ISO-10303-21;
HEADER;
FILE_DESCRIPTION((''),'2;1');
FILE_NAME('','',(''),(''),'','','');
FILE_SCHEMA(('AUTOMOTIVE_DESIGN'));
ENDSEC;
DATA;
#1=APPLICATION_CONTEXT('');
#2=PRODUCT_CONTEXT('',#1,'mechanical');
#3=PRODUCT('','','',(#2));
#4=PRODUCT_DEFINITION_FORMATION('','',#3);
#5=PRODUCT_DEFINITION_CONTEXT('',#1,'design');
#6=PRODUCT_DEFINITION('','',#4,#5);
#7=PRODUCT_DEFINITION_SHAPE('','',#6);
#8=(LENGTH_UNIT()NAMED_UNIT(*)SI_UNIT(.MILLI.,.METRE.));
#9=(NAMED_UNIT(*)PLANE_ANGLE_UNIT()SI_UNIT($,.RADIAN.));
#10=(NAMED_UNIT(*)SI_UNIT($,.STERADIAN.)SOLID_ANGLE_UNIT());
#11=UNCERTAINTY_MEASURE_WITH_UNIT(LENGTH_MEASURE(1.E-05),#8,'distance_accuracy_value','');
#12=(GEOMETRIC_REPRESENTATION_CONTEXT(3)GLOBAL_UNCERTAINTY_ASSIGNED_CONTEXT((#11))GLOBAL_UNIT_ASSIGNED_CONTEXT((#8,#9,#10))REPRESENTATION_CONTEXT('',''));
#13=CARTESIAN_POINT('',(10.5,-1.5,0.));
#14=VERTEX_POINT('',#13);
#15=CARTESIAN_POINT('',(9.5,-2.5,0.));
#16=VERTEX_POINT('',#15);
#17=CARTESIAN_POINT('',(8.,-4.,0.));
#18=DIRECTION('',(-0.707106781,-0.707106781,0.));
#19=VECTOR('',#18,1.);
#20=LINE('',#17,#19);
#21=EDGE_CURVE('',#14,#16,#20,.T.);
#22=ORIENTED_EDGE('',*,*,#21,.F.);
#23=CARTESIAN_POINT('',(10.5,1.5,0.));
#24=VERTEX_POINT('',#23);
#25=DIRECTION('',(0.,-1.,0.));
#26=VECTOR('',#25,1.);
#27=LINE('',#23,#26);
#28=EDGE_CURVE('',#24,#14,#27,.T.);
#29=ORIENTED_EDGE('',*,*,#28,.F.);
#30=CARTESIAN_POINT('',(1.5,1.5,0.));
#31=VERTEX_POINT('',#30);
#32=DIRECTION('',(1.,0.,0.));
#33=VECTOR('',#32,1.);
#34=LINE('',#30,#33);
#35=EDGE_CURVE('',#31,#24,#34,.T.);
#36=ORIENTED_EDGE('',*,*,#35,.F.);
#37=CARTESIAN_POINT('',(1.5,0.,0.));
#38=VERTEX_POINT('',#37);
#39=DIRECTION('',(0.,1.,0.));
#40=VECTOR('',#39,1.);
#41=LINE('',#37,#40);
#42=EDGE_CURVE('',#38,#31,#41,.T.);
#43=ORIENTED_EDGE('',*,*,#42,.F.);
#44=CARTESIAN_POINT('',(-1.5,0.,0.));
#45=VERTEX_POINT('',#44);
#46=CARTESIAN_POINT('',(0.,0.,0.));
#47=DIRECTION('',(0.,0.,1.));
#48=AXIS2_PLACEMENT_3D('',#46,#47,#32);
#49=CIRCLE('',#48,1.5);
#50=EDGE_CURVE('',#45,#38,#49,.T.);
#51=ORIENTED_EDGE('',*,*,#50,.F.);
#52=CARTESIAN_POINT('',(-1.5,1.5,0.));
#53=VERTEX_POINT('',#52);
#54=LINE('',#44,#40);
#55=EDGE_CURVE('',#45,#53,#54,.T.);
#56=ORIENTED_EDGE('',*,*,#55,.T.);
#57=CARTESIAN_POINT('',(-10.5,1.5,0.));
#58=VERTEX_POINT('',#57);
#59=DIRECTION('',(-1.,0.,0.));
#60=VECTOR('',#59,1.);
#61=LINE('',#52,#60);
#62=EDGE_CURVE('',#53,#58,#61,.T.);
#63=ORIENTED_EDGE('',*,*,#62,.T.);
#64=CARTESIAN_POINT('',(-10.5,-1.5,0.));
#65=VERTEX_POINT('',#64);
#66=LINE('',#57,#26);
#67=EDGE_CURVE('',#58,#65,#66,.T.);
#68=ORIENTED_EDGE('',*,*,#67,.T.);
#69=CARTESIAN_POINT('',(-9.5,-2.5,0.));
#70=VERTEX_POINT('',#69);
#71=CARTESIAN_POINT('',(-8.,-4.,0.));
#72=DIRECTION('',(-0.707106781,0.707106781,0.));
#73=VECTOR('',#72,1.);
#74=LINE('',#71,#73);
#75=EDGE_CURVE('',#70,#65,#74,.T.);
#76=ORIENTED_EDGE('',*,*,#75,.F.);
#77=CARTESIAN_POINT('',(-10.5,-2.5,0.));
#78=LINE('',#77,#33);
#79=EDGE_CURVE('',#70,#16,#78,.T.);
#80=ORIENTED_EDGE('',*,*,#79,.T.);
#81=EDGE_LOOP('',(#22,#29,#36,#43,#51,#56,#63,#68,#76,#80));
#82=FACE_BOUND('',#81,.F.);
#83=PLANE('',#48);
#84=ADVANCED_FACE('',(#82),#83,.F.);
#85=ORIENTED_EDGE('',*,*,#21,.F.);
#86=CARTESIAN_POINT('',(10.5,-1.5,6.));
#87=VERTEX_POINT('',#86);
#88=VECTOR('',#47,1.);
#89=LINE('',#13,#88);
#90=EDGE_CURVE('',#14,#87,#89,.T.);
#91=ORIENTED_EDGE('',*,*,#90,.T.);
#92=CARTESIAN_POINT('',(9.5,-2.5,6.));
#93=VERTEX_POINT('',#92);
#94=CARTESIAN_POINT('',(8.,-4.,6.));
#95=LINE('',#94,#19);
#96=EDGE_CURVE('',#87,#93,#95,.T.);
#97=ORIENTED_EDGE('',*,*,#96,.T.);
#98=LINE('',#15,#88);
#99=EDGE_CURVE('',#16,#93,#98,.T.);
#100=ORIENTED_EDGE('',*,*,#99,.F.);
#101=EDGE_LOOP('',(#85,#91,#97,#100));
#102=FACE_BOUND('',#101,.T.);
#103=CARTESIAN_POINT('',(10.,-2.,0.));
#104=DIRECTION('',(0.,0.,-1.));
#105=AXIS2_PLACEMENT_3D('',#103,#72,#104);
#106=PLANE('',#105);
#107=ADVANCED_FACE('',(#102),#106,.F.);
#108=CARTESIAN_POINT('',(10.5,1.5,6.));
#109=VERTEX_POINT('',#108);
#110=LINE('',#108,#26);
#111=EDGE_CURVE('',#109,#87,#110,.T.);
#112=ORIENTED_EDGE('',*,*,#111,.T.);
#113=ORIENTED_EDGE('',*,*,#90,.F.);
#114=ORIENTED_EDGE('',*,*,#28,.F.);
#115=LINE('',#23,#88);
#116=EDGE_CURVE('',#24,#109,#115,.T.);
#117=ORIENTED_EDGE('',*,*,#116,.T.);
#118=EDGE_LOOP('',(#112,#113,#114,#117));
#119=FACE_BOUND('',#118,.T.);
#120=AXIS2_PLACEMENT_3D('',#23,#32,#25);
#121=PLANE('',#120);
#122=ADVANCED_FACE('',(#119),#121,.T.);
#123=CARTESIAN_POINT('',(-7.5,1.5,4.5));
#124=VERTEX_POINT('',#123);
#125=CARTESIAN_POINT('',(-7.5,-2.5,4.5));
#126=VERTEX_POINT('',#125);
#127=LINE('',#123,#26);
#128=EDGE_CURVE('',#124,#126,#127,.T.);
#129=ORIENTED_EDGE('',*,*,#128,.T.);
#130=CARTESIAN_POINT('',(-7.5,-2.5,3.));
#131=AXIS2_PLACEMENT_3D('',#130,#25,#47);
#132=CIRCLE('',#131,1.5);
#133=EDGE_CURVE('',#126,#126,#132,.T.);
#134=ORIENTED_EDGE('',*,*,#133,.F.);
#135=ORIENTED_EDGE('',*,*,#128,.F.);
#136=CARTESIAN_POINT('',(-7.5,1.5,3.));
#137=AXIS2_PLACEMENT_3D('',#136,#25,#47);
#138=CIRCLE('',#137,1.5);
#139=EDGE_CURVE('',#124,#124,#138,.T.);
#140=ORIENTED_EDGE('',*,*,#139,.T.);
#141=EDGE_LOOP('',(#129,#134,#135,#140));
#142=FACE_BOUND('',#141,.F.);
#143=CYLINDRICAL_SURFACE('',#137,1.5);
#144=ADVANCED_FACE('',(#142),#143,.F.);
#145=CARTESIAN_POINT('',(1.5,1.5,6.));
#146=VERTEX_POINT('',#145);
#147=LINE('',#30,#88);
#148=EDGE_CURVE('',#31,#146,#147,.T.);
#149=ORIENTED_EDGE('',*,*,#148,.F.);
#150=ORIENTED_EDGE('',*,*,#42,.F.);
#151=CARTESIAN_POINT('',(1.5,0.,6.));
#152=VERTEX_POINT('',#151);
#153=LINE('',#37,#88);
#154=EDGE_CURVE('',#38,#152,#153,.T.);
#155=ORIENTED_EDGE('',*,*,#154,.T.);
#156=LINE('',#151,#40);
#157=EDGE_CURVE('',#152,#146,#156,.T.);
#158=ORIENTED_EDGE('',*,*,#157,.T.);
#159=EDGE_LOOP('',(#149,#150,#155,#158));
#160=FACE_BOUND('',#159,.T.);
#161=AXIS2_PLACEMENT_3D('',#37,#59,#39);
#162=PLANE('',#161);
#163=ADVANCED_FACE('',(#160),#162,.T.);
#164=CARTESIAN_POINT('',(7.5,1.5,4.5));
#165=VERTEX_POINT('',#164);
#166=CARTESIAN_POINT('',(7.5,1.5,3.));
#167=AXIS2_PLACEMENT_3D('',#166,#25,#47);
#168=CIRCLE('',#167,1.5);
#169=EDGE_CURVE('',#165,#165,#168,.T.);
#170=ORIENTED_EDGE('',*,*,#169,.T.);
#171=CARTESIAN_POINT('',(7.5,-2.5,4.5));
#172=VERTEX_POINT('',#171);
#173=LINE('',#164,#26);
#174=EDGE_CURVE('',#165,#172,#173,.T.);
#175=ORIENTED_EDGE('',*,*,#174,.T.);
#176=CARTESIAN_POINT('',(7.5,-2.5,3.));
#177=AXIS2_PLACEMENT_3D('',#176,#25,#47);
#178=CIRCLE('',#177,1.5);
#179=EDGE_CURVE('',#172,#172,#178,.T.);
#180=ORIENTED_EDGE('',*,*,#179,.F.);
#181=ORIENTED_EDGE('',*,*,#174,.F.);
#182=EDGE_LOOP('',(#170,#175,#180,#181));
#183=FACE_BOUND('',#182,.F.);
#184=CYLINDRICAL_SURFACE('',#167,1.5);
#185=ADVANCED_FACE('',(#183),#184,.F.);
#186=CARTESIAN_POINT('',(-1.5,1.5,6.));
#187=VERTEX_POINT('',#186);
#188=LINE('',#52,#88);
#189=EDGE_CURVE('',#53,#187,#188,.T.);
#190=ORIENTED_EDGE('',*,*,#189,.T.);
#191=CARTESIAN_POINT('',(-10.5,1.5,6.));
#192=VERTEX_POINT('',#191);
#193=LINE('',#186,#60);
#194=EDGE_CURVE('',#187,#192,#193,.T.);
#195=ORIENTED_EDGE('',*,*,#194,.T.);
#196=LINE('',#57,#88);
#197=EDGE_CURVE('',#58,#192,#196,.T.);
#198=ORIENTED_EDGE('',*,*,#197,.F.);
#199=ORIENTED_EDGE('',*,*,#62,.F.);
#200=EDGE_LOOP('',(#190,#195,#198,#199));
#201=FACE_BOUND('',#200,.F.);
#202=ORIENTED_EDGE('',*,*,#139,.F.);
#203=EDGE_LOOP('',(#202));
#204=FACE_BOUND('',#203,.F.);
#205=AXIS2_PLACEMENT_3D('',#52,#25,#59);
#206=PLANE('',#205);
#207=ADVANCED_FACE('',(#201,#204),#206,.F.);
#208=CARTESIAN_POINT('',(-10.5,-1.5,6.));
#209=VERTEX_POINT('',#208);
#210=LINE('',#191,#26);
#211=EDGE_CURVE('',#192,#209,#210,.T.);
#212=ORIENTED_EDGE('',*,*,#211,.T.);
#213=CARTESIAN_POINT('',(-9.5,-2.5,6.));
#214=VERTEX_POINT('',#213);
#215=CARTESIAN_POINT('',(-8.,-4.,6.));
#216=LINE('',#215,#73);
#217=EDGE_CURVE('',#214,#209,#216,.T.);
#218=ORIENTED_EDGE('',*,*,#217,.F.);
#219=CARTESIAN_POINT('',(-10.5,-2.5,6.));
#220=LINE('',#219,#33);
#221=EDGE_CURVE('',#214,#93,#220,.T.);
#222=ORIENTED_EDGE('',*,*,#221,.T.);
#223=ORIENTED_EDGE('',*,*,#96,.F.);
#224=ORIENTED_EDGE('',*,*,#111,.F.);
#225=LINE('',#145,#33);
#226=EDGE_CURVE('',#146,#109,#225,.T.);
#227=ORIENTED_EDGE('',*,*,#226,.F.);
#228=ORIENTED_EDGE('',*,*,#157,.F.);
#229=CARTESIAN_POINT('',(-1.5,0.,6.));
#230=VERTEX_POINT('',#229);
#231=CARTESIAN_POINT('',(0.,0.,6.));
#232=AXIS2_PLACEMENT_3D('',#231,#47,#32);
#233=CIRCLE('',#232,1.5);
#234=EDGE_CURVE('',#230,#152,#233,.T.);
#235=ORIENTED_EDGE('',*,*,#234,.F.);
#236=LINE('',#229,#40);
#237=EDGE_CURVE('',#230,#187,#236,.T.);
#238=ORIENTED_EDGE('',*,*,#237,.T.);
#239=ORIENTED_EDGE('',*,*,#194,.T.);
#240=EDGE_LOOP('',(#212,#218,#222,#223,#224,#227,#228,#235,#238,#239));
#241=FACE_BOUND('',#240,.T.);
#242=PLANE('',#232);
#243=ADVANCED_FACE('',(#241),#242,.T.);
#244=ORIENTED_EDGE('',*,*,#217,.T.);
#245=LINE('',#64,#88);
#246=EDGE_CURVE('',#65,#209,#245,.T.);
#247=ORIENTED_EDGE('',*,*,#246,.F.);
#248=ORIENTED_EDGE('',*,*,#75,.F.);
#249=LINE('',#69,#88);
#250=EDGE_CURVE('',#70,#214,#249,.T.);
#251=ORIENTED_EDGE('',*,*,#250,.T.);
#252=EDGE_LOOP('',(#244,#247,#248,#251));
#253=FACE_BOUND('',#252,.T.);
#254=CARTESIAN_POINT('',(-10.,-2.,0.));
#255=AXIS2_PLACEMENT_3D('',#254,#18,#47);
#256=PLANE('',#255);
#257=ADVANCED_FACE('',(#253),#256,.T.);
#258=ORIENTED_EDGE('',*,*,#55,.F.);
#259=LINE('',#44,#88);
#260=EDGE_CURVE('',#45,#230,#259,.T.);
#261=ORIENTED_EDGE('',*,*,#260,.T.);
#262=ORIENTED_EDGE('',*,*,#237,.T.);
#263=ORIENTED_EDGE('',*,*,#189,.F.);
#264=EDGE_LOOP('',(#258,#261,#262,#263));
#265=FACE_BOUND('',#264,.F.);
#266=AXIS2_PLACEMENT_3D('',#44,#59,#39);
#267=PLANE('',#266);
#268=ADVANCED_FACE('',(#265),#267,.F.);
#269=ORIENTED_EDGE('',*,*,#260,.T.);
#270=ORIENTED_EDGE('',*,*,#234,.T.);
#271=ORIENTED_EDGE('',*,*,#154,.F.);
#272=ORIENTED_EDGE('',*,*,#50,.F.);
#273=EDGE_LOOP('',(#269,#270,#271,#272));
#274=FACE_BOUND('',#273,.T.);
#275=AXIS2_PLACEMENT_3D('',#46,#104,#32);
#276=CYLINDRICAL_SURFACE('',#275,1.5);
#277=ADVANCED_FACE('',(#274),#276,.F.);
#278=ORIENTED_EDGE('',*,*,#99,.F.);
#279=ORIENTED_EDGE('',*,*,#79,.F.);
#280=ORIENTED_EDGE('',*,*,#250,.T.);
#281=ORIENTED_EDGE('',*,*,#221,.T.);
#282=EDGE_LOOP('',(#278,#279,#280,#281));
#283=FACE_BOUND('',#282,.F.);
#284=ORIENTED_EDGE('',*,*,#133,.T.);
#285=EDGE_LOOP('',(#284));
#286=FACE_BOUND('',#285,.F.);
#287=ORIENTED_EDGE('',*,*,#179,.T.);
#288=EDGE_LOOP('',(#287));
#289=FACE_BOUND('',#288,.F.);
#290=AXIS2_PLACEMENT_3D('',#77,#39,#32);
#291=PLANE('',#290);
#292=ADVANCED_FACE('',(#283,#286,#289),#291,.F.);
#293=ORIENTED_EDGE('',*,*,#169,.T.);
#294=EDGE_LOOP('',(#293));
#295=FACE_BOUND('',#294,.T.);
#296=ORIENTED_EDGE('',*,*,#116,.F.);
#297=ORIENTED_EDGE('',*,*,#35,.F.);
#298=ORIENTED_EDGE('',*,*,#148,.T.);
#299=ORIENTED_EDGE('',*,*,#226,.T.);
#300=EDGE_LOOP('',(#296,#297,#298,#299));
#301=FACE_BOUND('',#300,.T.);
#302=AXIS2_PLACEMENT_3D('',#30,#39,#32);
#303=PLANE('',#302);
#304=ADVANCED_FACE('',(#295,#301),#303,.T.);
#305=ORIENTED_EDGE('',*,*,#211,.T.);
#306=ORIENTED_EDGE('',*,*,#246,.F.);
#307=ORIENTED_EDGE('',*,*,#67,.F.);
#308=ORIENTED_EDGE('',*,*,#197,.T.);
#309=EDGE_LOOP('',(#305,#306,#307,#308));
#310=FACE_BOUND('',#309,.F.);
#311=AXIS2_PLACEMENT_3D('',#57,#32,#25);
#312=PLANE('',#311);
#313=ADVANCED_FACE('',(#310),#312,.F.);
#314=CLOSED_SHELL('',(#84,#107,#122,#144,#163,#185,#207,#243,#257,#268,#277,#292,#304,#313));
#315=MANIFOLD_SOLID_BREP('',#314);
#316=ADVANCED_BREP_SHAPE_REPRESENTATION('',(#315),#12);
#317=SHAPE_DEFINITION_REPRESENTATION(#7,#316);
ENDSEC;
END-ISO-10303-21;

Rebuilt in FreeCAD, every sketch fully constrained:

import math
import FreeCAD as App
import Part
import Sketcher
from FreeCAD import Vector
Q = App.Units.Quantity


def edges_at(feature, points):
    """Names of the edges that pass closest to the given points."""
    edges = feature.Shape.Edges
    near = lambda p: min(range(len(edges)), key=lambda i: edges[i].distToShape(Part.Vertex(*p))[0])
    return sorted({f"Edge{near(p) + 1}" for p in points})

doc = App.newDocument("Part")
body = doc.addObject("PartDesign::Body", "Body")

# Sketch on XY plane
sketch1 = body.newObject("Sketcher::SketchObject", "Sketch")
sketch1.AttachmentSupport = (doc.getObject("XY_Plane"), [""])
sketch1.MapMode = "FlatFace"
sketch1.addGeometry(Part.LineSegment(Vector(1.5, 1.5, 0), Vector(1.5, 0, 0)), False)
sketch1.addGeometry(Part.ArcOfCircle(Part.Circle(Vector(0, 0, 0), Vector(0, 0, 1), 1.5), math.radians(180), math.radians(360)), False)
sketch1.addGeometry(Part.LineSegment(Vector(-1.5, 0, 0), Vector(-1.5, 1.5, 0)), False)
sketch1.addGeometry(Part.LineSegment(Vector(-1.5, 1.5, 0), Vector(-10.5, 1.5, 0)), False)
sketch1.addGeometry(Part.LineSegment(Vector(-10.5, 1.5, 0), Vector(-10.5, -2.5, 0)), False)
sketch1.addGeometry(Part.LineSegment(Vector(-10.5, -2.5, 0), Vector(10.5, -2.5, 0)), False)
sketch1.addGeometry(Part.LineSegment(Vector(10.5, -2.5, 0), Vector(10.5, 1.5, 0)), False)
sketch1.addGeometry(Part.LineSegment(Vector(10.5, 1.5, 0), Vector(1.5, 1.5, 0)), False)
sketch1.addConstraint(Sketcher.Constraint("Tangent", 0, 2, 1, 2))
sketch1.addConstraint(Sketcher.Constraint("Tangent", 1, 1, 2, 1))
sketch1.addConstraint(Sketcher.Constraint("Coincident", 2, 2, 3, 1))
sketch1.addConstraint(Sketcher.Constraint("Coincident", 3, 2, 4, 1))
sketch1.addConstraint(Sketcher.Constraint("Coincident", 4, 2, 5, 1))
sketch1.addConstraint(Sketcher.Constraint("Coincident", 5, 2, 6, 1))
sketch1.addConstraint(Sketcher.Constraint("Coincident", 6, 2, 7, 1))
sketch1.addConstraint(Sketcher.Constraint("Coincident", 7, 2, 0, 1))
sketch1.addConstraint(Sketcher.Constraint("Vertical", 0))
sketch1.addConstraint(Sketcher.Constraint("Vertical", 2))
sketch1.addConstraint(Sketcher.Constraint("Horizontal", 3))
sketch1.addConstraint(Sketcher.Constraint("Vertical", 4))
sketch1.addConstraint(Sketcher.Constraint("Horizontal", 5))
sketch1.addConstraint(Sketcher.Constraint("Vertical", 6))
sketch1.addConstraint(Sketcher.Constraint("Horizontal", 7))
sketch1.addConstraint(Sketcher.Constraint("Coincident", 1, 3, -1, 1))
sketch1.addConstraint(Sketcher.Constraint("Symmetric", 3, 2, 6, 2, -2))
sketch1.addConstraint(Sketcher.Constraint("Radius", 1, Q("1.5 mm")))
sketch1.addConstraint(Sketcher.Constraint("DistanceX", 5, 1, 5, 2, Q("21 mm")))
sketch1.addConstraint(Sketcher.Constraint("DistanceY", 4, 2, -1, 1, Q("2.5 mm")))
sketch1.addConstraint(Sketcher.Constraint("DistanceY", 4, 2, 4, 1, Q("4 mm")))
pad1 = body.newObject("PartDesign::Pad", "Pad")
pad1.Profile = sketch1
pad1.Length = 6
doc.recompute()

chamfer = body.newObject("PartDesign::Chamfer", "Chamfer")
chamfer.Base = (pad1, edges_at(pad1, [(10.5, -2.5, 3), (-10.5, -2.5, 3)]))
chamfer.Size = 1

# Sketch on XZ plane
sketch2 = body.newObject("Sketcher::SketchObject", "Sketch001")
sketch2.AttachmentSupport = (doc.getObject("XZ_Plane"), [""])
sketch2.MapMode = "FlatFace"
sketch2.AttachmentOffset = App.Placement(Vector(0, 0, -1.5), App.Rotation())
sketch2.addGeometry(Part.Circle(Vector(-7.5, 3, 0), Vector(0, 0, 1), 1.5), False)
sketch2.addGeometry(Part.Circle(Vector(7.5, 3, 0), Vector(0, 0, 1), 1.5), False)
sketch2.addConstraint(Sketcher.Constraint("Equal", 0, 1))
sketch2.addConstraint(Sketcher.Constraint("Symmetric", 0, 3, 1, 3, -2))
sketch2.addConstraint(Sketcher.Constraint("Diameter", 0, Q("3 mm")))
sketch2.addConstraint(Sketcher.Constraint("DistanceY", -1, 1, 0, 3, Q("3 mm")))
sketch2.addConstraint(Sketcher.Constraint("DistanceX", 0, 3, 1, 3, Q("15 mm")))
doc.recompute()
hole = body.newObject("PartDesign::Hole", "Hole")
hole.Profile = sketch2
hole.ThreadType = "None"
hole.Diameter = 3
hole.DepthType = "ThroughAll"
hole.Reversed = True

doc.recompute()
